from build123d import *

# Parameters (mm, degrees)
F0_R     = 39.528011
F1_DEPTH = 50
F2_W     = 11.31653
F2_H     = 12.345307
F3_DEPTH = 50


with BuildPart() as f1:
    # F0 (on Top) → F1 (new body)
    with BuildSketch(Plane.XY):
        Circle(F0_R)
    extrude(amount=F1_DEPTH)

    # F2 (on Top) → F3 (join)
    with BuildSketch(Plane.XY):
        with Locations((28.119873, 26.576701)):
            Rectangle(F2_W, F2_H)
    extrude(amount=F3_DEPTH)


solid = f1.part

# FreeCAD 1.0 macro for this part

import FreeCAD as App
import Part
import Sketcher
from FreeCAD import Vector
Q = App.Units.Quantity


def add_polygon(sketch, points):
    """Adds a closed chain of lines whose ends are joined by coincident constraints."""
    first, n = sketch.GeometryCount, len(points)
    for a, b in zip(points, points[1:] + points[:1]):
        sketch.addGeometry(Part.LineSegment(App.Vector(*a, 0), App.Vector(*b, 0)), False)
    for i in range(n):
        sketch.addConstraint(Sketcher.Constraint("Coincident", first + i, 2, first + (i + 1) % n, 1))

doc = App.newDocument("Part")
params = doc.addObject("Spreadsheet::Sheet", "Params")
for row, (alias, value) in enumerate([
    ("pad1_length", "50 mm"),
    ("pad2_length", "50 mm"),
], start=1):
    params.set(f"A{row}", alias)
    params.set(f"B{row}", "=" + value)
    params.setAlias(f"B{row}", alias)

body = doc.addObject("PartDesign::Body", "Body")

sketch1 = doc.addObject("Sketcher::SketchObject", "Sketch")
body.addObject(sketch1)
sketch1.AttachmentSupport = (doc.XY_Plane, [""])
sketch1.MapMode = "FlatFace"
sketch1.addGeometry(Part.Circle(Vector(0, 0, 0), Vector(0, 0, 1), 40), False)
sketch1.addConstraint([
    Sketcher.Constraint("Coincident", 0, 3, -1, 1),
    Sketcher.Constraint("Diameter", 0, Q("79.056022 mm")),
])
pad1 = doc.addObject("PartDesign::Pad", "Pad")
body.addObject(pad1)
pad1.Profile = sketch1
pad1.setExpression("Length", "Params.pad1_length")

sketch2 = doc.addObject("Sketcher::SketchObject", "Sketch001")
body.addObject(sketch2)
sketch2.AttachmentSupport = (doc.XY_Plane, [""])
sketch2.MapMode = "FlatFace"
add_polygon(sketch2, [(22, 33), (22, 20), (34, 20), (34, 33)])
sketch2.addConstraint([
    Sketcher.Constraint("Vertical", 0),
    Sketcher.Constraint("Horizontal", 1),
    Sketcher.Constraint("Vertical", 2),
    Sketcher.Constraint("Horizontal", 3),
    Sketcher.Constraint("DistanceX", 1, 1, 1, 2, Q("11.31653 mm")),
    Sketcher.Constraint("DistanceY", 0, 2, 0, 1, Q("12.345307 mm")),
    Sketcher.Constraint("DistanceX", -1, 1, 0, 2, Q("22.461608 mm")),
    Sketcher.Constraint("DistanceY", -1, 1, 0, 2, Q("20.404048 mm")),
])
pad2 = doc.addObject("PartDesign::Pad", "Pad001")
body.addObject(pad2)
pad2.Profile = sketch2
pad2.setExpression("Length", "Params.pad2_length")

doc.recompute()
